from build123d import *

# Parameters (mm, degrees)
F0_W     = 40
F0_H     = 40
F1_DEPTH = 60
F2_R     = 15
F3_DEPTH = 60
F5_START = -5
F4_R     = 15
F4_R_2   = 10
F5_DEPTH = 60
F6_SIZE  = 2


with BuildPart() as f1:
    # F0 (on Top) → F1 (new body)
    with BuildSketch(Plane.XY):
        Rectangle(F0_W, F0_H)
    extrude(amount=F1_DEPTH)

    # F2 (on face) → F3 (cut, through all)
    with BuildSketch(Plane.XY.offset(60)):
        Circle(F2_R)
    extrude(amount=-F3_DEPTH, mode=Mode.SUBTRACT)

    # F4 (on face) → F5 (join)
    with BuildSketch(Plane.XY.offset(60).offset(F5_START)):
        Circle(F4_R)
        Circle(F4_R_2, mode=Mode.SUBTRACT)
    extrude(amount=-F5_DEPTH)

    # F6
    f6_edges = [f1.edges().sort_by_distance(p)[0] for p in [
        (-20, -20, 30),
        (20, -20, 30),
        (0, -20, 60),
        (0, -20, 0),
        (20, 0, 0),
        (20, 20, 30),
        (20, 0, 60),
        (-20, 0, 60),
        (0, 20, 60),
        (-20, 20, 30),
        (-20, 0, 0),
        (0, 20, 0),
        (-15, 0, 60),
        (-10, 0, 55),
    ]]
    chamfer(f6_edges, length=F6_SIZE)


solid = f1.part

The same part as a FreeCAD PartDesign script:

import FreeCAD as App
import Part
import Sketcher
from FreeCAD import Vector


def edges_at(feature, points):
    """Names of the edges that pass closest to the given points."""
    edges = feature.Shape.Edges
    near = lambda p: min(range(len(edges)), key=lambda i: edges[i].distToShape(Part.Vertex(*p))[0])
    return sorted({f"Edge{near(p) + 1}" for p in points})


def add_polygon(sketch, points):
    """Adds a closed chain of lines whose ends are joined by coincident constraints."""
    first, n = sketch.GeometryCount, len(points)
    for a, b in zip(points, points[1:] + points[:1]):
        sketch.addGeometry(Part.LineSegment(App.Vector(*a, 0), App.Vector(*b, 0)), False)
    for i in range(n):
        sketch.addConstraint(Sketcher.Constraint("Coincident", first + i, 2, first + (i + 1) % n, 1))

doc = App.newDocument("Part")
body = doc.addObject("PartDesign::Body", "Body")

# Sketch on XY plane
sketch1 = body.newObject("Sketcher::SketchObject", "Sketch")
sketch1.AttachmentSupport = (doc.getObject("XY_Plane"), [""])
sketch1.MapMode = "FlatFace"
add_polygon(sketch1, [(-20, 20), (-20, -20), (20, -20), (20, 20)])  # lines 0-3
sketch1.addConstraint(Sketcher.Constraint("Vertical", 0))
sketch1.addConstraint(Sketcher.Constraint("Horizontal", 1))
sketch1.addConstraint(Sketcher.Constraint("Vertical", 2))
sketch1.addConstraint(Sketcher.Constraint("Horizontal", 3))
sketch1.addConstraint(Sketcher.Constraint("Symmetric", 0, 2, 2, 2, -1, 1))
sketch1.addConstraint(Sketcher.Constraint("Equal", 3, 0))
sketch1.addConstraint(Sketcher.Constraint("DistanceX", 1, 1, 1, 2, 40.0))
pad1 = body.newObject("PartDesign::Pad", "Pad")
pad1.Profile = sketch1
pad1.Length = 60

# Sketch on XY plane
sketch2 = body.newObject("Sketcher::SketchObject", "Sketch001")
sketch2.AttachmentSupport = (doc.getObject("XY_Plane"), [""])
sketch2.MapMode = "FlatFace"
sketch2.AttachmentOffset = App.Placement(Vector(0, 0, 60), App.Rotation())
sketch2.addGeometry(Part.Circle(Vector(0, 0, 0), Vector(0, 0, 1), 15), False)
sketch2.addConstraint(Sketcher.Constraint("Coincident", 0, 3, -1, 1))
sketch2.addConstraint(Sketcher.Constraint("Diameter", 0, 30.0))
pocket1 = body.newObject("PartDesign::Pocket", "Pocket")
pocket1.Profile = sketch2
pocket1.Type = "ThroughAll"

# Sketch on XY plane
sketch3 = body.newObject("Sketcher::SketchObject", "Sketch002")
sketch3.AttachmentSupport = (doc.getObject("XY_Plane"), [""])
sketch3.MapMode = "FlatFace"
sketch3.AttachmentOffset = App.Placement(Vector(0, 0, 55), App.Rotation())
sketch3.addGeometry(Part.Circle(Vector(0, 0, 0), Vector(0, 0, 1), 15), False)
sketch3.addGeometry(Part.Circle(Vector(0, 0, 0), Vector(0, 0, 1), 10), False)
sketch3.addConstraint(Sketcher.Constraint("Coincident", 0, 3, -1, 1))
sketch3.addConstraint(Sketcher.Constraint("Coincident", 1, 3, -1, 1))
sketch3.addConstraint(Sketcher.Constraint("Diameter", 0, 30.0))
sketch3.addConstraint(Sketcher.Constraint("Diameter", 1, 20.0))
pad2 = body.newObject("PartDesign::Pad", "Pad001")
pad2.Profile = sketch3
pad2.Length = 60
pad2.Reversed = True
doc.recompute()

chamfer = body.newObject("PartDesign::Chamfer", "Chamfer")
chamfer.Base = (pad2, edges_at(pad2, [
    (-20, -20, 30),
    (20, -20, 30),
    (0, -20, 60),
    (0, -20, 0),
    (20, 0, 0),
    (20, 20, 30),
    (20, 0, 60),
    (-20, 0, 60),
    (0, 20, 60),
    (-20, 20, 30),
    (-20, 0, 0),
    (0, 20, 0),
    (-15, 0, 60),
    (-10, 0, 55),
]))
chamfer.Size = 2

doc.recompute()
